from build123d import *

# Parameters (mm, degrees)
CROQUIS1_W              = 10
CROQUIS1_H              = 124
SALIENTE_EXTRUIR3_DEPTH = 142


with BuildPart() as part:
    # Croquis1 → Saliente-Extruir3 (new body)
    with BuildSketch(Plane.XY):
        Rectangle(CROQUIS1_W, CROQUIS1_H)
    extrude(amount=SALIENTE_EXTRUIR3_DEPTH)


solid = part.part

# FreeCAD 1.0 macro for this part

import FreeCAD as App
import Part
import Sketcher
from FreeCAD import Vector

doc = App.newDocument("Part")
body = doc.addObject("PartDesign::Body", "Body")

# Sketch on XY plane
sketch1 = body.newObject("Sketcher::SketchObject", "Sketch")
sketch1.AttachmentSupport = (doc.getObject("XY_Plane"), [""])
sketch1.MapMode = "FlatFace"
sketch1.addGeometry([
    Part.LineSegment(Vector(-5, 62, 0), Vector(-5, -62, 0)),
    Part.LineSegment(Vector(-5, -62, 0), Vector(5, -62, 0)),
    Part.LineSegment(Vector(5, -62, 0), Vector(5, 62, 0)),
    Part.LineSegment(Vector(5, 62, 0), Vector(-5, 62, 0)),
], False)
sketch1.addConstraint([
    Sketcher.Constraint("Coincident", 0, 2, 1, 1),
    Sketcher.Constraint("Coincident", 1, 2, 2, 1),
    Sketcher.Constraint("Coincident", 2, 2, 3, 1),
    Sketcher.Constraint("Coincident", 3, 2, 0, 1),
    Sketcher.Constraint("Vertical", 0),
    Sketcher.Constraint("Horizontal", 1),
    Sketcher.Constraint("Vertical", 2),
    Sketcher.Constraint("Horizontal", 3),
    Sketcher.Constraint("Symmetric", 0, 2, 2, 2, -1, 1),
    Sketcher.Constraint("DistanceX", 1, 1, 1, 2, 10.0),
    Sketcher.Constraint("DistanceY", 0, 2, 0, 1, 124.0),
])
pad1 = body.newObject("PartDesign::Pad", "Pad")
pad1.Profile = sketch1
pad1.Length = 142

doc.recompute()
